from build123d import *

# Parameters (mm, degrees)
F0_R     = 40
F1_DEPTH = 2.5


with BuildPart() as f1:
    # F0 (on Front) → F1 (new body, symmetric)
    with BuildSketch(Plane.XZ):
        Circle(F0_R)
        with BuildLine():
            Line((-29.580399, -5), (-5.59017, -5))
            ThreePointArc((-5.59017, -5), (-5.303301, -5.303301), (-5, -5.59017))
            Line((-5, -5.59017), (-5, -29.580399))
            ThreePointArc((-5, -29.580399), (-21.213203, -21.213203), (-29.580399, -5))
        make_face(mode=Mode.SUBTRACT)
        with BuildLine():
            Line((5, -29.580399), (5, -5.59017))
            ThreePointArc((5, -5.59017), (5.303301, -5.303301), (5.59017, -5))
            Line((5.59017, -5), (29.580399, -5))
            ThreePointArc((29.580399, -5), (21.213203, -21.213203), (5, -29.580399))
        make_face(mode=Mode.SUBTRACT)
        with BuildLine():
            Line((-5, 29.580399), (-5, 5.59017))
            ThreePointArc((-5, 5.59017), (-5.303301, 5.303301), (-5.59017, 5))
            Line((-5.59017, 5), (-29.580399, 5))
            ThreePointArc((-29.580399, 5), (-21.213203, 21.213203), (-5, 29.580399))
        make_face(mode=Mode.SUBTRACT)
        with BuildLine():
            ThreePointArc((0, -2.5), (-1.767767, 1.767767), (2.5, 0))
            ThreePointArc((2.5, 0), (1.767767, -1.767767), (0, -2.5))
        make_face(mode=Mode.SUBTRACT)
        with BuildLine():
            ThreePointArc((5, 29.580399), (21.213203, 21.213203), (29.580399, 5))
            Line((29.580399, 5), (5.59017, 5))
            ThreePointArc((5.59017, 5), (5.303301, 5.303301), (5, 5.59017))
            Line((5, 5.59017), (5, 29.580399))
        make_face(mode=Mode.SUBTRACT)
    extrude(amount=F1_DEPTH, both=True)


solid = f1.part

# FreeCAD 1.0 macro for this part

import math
import FreeCAD as App
import Part
import Sketcher

doc = App.newDocument("Part")
body = doc.addObject("PartDesign::Body", "Body")

# Sketch on XZ plane
sketch1 = body.newObject("Sketcher::SketchObject", "Sketch")
sketch1.AttachmentSupport = (doc.getObject("XZ_Plane"), [""])
sketch1.MapMode = "FlatFace"
sketch1.addGeometry([
    Part.Circle(App.Vector(0, 0, 0), App.Vector(0, 0, 1), 40),  # 0
    Part.ArcOfCircle(Part.Circle(App.Vector(0.000003, 0.000003, 0), App.Vector(0, 0, 1), 30.000003), math.radians(-170.405928), math.radians(-99.594072)),  # 1
    Part.LineSegment(App.Vector(-29.580399, -5, 0), App.Vector(-5.59017, -5, 0)),  # 2
    Part.ArcOfCircle(Part.Circle(App.Vector(-0.000072, -0.000072, 0), App.Vector(0, 0, 1), 7.499898), math.radians(-138.189729), math.radians(-131.810271)),  # 3
    Part.LineSegment(App.Vector(-5, -5.59017, 0), App.Vector(-5, -29.580399, 0)),  # 4
    Part.ArcOfCircle(Part.Circle(App.Vector(-0.000003, 0.000003, 0), App.Vector(0, 0, 1), 30.000003), math.radians(-80.405928), math.radians(-9.594072)),  # 5
    Part.LineSegment(App.Vector(5, -29.580399, 0), App.Vector(5, -5.59017, 0)),  # 6
    Part.ArcOfCircle(Part.Circle(App.Vector(0.000072, -0.000072, 0), App.Vector(0, 0, 1), 7.499898), math.radians(-48.189729), math.radians(-41.810271)),  # 7
    Part.LineSegment(App.Vector(5.59017, -5, 0), App.Vector(29.580399, -5, 0)),  # 8
    Part.ArcOfCircle(Part.Circle(App.Vector(0, 0, 0), App.Vector(0, 0, 1), 2.5), math.radians(-90.000004), math.radians(0.000004)),  # 9
    Part.ArcOfCircle(Part.Circle(App.Vector(0, 0, 0), App.Vector(0, 0, 1), 2.5), math.radians(-0.000001), math.radians(270.000001)),  # 10
    Part.ArcOfCircle(Part.Circle(App.Vector(0.000003, -0.000003, 0), App.Vector(0, 0, 1), 30.000003), math.radians(99.594072), math.radians(170.405928)),  # 11
    Part.LineSegment(App.Vector(-5, 29.580399, 0), App.Vector(-5, 5.59017, 0)),  # 12
    Part.ArcOfCircle(Part.Circle(App.Vector(-0.000072, 0.000072, 0), App.Vector(0, 0, 1), 7.499898), math.radians(131.810271), math.radians(138.189729)),  # 13
    Part.LineSegment(App.Vector(-5.59017, 5, 0), App.Vector(-29.580399, 5, 0)),  # 14
    Part.LineSegment(App.Vector(5, 5.59017, 0), App.Vector(5, 29.580399, 0)),  # 15
    Part.ArcOfCircle(Part.Circle(App.Vector(-0.000003, -0.000003, 0), App.Vector(0, 0, 1), 30.000003), math.radians(9.594072), math.radians(80.405928)),  # 16
    Part.LineSegment(App.Vector(29.580399, 5, 0), App.Vector(5.59017, 5, 0)),  # 17
    Part.ArcOfCircle(Part.Circle(App.Vector(0.000072, 0.000072, 0), App.Vector(0, 0, 1), 7.499898), math.radians(41.810271), math.radians(48.189729)),  # 18
], False)
sketch1.addConstraint([
    Sketcher.Constraint("Coincident", 1, 1, 2, 1),
    Sketcher.Constraint("Coincident", 2, 2, 3, 1),
    Sketcher.Constraint("Coincident", 3, 2, 4, 1),
    Sketcher.Constraint("Coincident", 4, 2, 1, 2),
    Sketcher.Constraint("Coincident", 5, 1, 6, 1),
    Sketcher.Constraint("Coincident", 6, 2, 7, 1),
    Sketcher.Constraint("Coincident", 7, 2, 8, 1),
    Sketcher.Constraint("Coincident", 8, 2, 5, 2),
    Sketcher.Constraint("Tangent", 9, 1, 10, 2),
    Sketcher.Constraint("Coincident", 10, 1, 9, 2),
    Sketcher.Constraint("Coincident", 11, 1, 12, 1),
    Sketcher.Constraint("Coincident", 12, 2, 13, 1),
    Sketcher.Constraint("Coincident", 13, 2, 14, 1),
    Sketcher.Constraint("Coincident", 14, 2, 11, 2),
    Sketcher.Constraint("Coincident", 15, 2, 16, 2),
    Sketcher.Constraint("Coincident", 16, 1, 17, 1),
    Sketcher.Constraint("Coincident", 17, 2, 18, 1),
    Sketcher.Constraint("Coincident", 18, 2, 15, 1),
    Sketcher.Constraint("Horizontal", 2),
    Sketcher.Constraint("Vertical", 4),
    Sketcher.Constraint("Vertical", 6),
    Sketcher.Constraint("Horizontal", 8),
    Sketcher.Constraint("Vertical", 12),
    Sketcher.Constraint("Horizontal", 14),
    Sketcher.Constraint("Vertical", 15),
    Sketcher.Constraint("Horizontal", 17),
    Sketcher.Constraint("Coincident", 0, 3, -1, 1),
    Sketcher.Constraint("Coincident", 1, 3, -1, 1),
    Sketcher.Constraint("Coincident", 5, 3, -1, 1),
    Sketcher.Constraint("Coincident", 9, 3, -1, 1),
    Sketcher.Constraint("Coincident", 11, 3, -1, 1),
    Sketcher.Constraint("Coincident", 16, 3, -1, 1),
    Sketcher.Constraint("Equal", 1, 5),
    Sketcher.Constraint("Equal", 3, 7),
    Sketcher.Constraint("Equal", 5, 11),
    Sketcher.Constraint("Equal", 7, 13),
    Sketcher.Constraint("Equal", 11, 16),
    Sketcher.Constraint("Equal", 13, 18),
    Sketcher.Constraint("Symmetric", 7, 3, 13, 3, -1, 1),
    Sketcher.Constraint("Symmetric", 3, 3, 18, 3, -1, 1),
    Sketcher.Constraint("Symmetric", 3, 3, 7, 3, -2),
    Sketcher.Constraint("PointOnObject", 9, 1, -2),
    Sketcher.Constraint("PointOnObject", 10, 1, -1),
    Sketcher.Constraint("Horizontal", 4, 2, 5, 1),
    Sketcher.Constraint("Horizontal", 2, 2, 7, 2),
    Sketcher.Constraint("Horizontal", 11, 1, 15, 2),
    Sketcher.Constraint("Horizontal", 14, 2, 16, 1),
    Sketcher.Constraint("Vertical", 4, 2, 11, 1),
    Sketcher.Constraint("Vertical", 2, 2, 13, 2),
    Sketcher.Constraint("Equal", 17, 4),
    Sketcher.Constraint("Diameter", 0, 80.0),
    Sketcher.Constraint("Radius", 9, 2.5),
    Sketcher.Constraint("DistanceY", 1, 1, -1, 1, 5.0),
    Sketcher.Constraint("DistanceX", 3, 2, -1, 1, 5.0),
    Sketcher.Constraint("Radius", 3, 7.499898),
    Sketcher.Constraint("Radius", 1, 30.000003),
    Sketcher.Constraint("DistanceX", 2, 1, 2, 2, 23.990229),
])
pad1 = body.newObject("PartDesign::Pad", "Pad")
pad1.Profile = sketch1
pad1.Length = 5
pad1.Midplane = True

doc.recompute()
